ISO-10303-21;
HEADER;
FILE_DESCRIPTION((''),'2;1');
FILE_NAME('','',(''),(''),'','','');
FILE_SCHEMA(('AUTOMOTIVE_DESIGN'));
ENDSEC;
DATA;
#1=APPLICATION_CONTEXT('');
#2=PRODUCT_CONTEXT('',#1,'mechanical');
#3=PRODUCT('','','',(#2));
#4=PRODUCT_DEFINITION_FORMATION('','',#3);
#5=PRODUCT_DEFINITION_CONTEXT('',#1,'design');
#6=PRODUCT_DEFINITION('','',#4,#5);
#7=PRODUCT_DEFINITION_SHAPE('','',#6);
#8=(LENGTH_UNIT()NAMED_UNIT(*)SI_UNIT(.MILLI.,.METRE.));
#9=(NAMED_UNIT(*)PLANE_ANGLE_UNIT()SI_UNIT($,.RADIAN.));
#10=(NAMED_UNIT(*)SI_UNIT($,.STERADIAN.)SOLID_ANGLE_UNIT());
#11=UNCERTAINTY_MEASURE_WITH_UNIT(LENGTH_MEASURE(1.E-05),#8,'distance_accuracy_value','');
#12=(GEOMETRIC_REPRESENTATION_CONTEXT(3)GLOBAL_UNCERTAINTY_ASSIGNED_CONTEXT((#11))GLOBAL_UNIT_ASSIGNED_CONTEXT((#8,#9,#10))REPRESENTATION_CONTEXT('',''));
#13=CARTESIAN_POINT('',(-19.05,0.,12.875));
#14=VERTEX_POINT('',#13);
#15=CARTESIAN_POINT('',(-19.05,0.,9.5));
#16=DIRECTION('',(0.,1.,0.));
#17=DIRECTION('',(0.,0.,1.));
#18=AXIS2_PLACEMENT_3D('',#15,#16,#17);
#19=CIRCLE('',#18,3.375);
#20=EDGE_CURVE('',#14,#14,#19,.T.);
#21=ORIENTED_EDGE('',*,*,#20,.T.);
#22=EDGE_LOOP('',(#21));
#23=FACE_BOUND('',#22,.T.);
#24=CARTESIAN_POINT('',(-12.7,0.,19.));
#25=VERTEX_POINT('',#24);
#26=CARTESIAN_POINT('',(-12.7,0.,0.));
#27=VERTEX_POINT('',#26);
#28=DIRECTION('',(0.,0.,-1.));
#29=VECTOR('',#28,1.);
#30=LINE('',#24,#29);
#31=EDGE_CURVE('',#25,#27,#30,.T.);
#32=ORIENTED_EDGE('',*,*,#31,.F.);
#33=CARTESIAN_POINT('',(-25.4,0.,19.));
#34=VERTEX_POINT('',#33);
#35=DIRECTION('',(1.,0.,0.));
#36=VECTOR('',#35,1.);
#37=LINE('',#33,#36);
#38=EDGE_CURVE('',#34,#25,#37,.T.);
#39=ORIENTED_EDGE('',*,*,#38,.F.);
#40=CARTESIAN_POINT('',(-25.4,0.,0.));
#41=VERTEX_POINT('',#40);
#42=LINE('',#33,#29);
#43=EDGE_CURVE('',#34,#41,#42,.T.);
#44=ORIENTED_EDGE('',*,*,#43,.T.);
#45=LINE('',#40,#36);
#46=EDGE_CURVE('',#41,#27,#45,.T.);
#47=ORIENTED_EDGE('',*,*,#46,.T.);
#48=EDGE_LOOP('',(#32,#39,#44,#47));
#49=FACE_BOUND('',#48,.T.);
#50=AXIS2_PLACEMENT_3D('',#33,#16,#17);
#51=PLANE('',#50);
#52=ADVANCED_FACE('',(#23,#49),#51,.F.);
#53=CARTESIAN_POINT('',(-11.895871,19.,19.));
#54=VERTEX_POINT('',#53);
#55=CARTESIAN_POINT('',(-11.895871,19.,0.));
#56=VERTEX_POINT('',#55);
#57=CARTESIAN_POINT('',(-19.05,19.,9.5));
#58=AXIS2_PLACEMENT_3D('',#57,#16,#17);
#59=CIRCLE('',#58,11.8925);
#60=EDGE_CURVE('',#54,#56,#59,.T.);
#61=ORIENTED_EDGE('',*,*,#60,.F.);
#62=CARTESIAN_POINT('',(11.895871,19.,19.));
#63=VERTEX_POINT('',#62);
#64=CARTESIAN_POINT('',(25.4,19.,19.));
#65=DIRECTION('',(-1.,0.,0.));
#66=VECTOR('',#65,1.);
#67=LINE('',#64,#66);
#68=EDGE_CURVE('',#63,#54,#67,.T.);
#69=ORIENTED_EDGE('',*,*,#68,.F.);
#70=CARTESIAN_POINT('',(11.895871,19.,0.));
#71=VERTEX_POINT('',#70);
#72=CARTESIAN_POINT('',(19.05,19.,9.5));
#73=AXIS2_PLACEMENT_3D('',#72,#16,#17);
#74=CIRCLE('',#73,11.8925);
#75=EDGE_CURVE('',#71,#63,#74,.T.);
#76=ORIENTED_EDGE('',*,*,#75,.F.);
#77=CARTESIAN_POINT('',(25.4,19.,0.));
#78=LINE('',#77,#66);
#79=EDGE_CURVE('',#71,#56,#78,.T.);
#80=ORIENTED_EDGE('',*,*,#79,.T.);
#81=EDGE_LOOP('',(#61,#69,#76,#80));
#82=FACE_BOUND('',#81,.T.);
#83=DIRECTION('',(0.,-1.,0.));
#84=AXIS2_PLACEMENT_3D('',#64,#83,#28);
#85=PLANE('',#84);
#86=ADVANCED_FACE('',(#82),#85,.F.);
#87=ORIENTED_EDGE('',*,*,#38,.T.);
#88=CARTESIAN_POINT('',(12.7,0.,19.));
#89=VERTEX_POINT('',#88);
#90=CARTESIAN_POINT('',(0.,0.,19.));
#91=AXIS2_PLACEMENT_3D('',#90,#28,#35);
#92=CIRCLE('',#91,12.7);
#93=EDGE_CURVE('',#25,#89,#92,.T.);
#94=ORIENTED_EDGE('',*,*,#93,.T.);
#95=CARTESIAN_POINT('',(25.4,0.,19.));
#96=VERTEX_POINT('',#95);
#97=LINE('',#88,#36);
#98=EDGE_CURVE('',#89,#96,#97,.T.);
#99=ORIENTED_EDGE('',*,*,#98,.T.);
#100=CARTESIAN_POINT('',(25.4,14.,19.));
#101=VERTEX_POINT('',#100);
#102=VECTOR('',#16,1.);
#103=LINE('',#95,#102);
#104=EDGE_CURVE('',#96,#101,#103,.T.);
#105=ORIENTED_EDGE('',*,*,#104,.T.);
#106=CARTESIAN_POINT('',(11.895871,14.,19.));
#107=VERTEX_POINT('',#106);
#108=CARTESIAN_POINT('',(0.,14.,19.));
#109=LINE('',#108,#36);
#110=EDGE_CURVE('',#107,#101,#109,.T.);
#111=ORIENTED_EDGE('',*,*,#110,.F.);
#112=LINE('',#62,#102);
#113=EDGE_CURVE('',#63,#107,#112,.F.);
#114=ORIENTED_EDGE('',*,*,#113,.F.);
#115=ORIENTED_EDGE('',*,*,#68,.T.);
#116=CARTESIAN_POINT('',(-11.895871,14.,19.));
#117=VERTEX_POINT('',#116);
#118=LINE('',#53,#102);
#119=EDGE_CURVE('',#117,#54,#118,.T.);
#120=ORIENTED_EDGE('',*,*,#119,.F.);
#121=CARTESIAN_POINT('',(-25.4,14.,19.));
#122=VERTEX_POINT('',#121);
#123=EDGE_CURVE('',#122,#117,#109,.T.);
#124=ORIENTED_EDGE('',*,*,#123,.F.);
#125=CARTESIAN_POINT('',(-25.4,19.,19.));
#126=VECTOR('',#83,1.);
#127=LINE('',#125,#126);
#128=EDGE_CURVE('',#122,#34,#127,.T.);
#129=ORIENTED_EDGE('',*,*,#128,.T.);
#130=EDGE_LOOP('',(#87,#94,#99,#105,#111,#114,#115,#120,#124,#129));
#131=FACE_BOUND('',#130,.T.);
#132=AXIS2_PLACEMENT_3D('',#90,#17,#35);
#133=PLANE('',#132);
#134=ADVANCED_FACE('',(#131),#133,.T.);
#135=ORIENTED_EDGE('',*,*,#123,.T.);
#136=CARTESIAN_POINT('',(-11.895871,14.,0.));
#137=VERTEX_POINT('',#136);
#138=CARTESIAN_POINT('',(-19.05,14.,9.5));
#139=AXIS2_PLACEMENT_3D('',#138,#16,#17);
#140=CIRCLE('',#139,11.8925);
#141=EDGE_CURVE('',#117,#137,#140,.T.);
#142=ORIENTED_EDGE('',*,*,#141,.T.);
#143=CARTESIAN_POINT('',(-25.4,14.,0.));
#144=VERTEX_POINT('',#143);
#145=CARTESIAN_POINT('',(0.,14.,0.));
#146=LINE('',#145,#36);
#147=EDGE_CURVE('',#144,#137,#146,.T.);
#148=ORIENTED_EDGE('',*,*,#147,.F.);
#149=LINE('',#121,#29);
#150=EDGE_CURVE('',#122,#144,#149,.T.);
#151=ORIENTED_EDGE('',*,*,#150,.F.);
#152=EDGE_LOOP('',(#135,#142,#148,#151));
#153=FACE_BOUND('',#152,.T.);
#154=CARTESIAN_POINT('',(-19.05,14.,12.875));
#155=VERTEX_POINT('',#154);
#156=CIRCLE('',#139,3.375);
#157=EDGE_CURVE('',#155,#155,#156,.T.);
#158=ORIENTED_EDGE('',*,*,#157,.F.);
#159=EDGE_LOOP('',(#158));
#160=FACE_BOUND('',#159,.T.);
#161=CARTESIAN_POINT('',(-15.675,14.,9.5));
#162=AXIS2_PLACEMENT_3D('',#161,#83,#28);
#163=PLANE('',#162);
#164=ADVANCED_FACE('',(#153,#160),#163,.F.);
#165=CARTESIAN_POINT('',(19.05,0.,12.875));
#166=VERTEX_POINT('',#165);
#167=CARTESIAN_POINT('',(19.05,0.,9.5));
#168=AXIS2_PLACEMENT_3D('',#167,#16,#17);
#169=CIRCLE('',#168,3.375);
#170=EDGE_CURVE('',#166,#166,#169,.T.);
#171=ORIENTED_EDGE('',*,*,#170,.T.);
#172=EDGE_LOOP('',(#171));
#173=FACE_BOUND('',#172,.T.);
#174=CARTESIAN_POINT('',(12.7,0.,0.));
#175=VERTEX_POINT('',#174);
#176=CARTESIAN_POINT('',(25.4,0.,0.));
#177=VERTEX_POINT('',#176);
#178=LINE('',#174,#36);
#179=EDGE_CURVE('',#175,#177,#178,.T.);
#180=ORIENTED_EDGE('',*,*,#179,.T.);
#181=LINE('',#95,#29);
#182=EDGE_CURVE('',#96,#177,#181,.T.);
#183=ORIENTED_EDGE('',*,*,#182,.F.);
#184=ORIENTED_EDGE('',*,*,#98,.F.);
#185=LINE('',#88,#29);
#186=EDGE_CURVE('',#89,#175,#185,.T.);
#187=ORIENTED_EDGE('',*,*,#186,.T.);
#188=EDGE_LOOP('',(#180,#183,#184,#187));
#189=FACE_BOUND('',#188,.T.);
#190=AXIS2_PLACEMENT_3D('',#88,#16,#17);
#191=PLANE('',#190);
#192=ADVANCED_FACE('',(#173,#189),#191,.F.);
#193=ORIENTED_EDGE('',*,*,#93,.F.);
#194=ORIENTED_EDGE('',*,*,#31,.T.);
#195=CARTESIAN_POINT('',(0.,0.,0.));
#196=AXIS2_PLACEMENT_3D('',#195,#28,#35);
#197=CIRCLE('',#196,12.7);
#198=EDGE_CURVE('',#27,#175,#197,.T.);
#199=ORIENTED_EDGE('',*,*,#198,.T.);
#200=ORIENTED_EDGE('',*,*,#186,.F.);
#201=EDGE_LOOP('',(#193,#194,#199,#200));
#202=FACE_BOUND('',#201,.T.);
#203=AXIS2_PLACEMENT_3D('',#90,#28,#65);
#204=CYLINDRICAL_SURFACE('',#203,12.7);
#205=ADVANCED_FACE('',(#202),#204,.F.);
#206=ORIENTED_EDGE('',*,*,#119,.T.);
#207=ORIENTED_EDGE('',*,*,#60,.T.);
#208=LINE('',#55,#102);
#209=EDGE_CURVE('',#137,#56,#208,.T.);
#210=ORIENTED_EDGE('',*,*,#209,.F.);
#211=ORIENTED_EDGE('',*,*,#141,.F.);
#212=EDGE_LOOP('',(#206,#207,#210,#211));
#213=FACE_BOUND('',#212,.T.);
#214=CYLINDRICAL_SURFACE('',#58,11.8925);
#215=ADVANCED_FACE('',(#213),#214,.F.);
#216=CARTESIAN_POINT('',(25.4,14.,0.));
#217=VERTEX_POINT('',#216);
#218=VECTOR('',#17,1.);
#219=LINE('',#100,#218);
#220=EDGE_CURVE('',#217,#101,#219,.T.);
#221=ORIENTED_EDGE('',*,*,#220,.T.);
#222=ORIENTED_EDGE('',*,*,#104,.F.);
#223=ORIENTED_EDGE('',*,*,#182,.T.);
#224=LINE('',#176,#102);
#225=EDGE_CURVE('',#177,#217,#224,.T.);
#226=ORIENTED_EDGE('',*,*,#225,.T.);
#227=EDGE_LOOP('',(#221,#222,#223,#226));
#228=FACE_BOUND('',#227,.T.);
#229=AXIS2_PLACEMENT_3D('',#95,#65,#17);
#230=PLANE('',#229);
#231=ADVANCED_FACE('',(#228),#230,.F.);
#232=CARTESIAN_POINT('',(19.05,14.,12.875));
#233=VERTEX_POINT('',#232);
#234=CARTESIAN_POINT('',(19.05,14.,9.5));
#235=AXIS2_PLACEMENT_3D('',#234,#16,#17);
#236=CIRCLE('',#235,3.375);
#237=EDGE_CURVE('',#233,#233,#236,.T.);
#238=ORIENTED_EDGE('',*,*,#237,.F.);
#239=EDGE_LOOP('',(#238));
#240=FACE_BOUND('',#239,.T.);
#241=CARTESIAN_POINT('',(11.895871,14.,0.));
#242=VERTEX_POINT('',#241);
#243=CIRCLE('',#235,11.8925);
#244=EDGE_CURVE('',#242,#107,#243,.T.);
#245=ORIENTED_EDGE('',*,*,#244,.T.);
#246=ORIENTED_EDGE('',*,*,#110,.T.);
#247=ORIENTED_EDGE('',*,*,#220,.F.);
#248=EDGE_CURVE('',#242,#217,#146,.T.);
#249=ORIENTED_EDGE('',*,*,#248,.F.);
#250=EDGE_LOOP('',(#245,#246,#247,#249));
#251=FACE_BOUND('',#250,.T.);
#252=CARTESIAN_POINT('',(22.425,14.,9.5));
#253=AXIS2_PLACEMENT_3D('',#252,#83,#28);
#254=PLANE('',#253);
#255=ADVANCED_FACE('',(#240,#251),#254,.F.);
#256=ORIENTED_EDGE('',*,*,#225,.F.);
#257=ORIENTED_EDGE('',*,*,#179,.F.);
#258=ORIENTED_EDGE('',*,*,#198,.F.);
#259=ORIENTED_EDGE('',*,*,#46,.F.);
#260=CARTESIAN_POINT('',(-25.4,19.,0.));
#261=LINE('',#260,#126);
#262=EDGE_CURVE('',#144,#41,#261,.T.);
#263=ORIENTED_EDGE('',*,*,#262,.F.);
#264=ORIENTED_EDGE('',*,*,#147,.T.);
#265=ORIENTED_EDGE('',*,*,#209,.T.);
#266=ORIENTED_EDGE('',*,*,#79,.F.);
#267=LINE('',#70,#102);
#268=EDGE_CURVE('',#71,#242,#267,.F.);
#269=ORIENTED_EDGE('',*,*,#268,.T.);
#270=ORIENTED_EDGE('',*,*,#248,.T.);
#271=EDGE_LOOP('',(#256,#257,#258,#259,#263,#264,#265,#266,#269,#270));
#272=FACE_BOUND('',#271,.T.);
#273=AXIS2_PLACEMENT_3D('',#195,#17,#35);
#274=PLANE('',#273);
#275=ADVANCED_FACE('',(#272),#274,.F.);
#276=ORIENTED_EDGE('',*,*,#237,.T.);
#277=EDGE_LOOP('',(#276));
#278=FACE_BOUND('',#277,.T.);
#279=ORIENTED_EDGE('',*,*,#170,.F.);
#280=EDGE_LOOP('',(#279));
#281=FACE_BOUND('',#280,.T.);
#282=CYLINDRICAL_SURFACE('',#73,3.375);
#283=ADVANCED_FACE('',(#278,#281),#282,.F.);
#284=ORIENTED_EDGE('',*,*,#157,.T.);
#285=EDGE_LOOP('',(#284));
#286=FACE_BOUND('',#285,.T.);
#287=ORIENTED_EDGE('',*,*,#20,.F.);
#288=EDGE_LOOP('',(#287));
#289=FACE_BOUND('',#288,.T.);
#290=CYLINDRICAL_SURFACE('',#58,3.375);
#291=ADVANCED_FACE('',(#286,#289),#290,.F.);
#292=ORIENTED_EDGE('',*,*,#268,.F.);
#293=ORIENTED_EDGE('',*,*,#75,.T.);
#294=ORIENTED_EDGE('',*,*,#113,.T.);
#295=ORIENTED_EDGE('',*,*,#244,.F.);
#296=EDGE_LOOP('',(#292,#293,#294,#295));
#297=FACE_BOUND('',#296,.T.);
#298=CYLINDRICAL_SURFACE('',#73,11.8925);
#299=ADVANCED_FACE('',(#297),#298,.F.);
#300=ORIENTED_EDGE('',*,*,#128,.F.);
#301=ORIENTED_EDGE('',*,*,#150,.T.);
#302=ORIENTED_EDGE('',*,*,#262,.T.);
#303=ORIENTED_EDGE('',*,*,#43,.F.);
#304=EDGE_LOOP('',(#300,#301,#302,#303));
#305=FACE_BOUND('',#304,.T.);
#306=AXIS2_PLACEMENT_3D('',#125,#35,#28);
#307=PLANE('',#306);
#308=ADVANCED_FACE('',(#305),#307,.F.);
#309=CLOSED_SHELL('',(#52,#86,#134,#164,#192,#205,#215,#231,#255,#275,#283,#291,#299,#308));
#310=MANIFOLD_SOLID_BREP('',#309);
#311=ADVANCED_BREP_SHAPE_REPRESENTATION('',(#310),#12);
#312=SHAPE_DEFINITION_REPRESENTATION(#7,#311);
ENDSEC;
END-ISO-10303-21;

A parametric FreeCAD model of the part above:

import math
import FreeCAD as App
import Part
import Sketcher

V = App.Vector
Q = App.Units.Quantity

doc = App.newDocument("Part")
body = doc.addObject("PartDesign::Body", "Body")

sketch1 = doc.addObject("Sketcher::SketchObject", "Sketch")
body.addObject(sketch1)
sketch1.AttachmentSupport = (doc.XY_Plane, [""])
sketch1.MapMode = "FlatFace"
sketch1.addGeometry([
    Part.LineSegment(V(13, 0, 0), V(25, 0, 0)),
    Part.LineSegment(V(25, 0, 0), V(25, 19, 0)),
    Part.LineSegment(V(25, 19, 0), V(-25, 19, 0)),
    Part.LineSegment(V(-25, 19, 0), V(-25, 0, 0)),
    Part.LineSegment(V(-25, 0, 0), V(-13, 0, 0)),
    Part.ArcOfCircle(Part.Circle(V(0, 0, 0), V(0, 0, 1), 13), math.radians(0), math.radians(180)),
], False)
sketch1.addConstraint([
    Sketcher.Constraint("Coincident", 0, 2, 1, 1),
    Sketcher.Constraint("Coincident", 1, 2, 2, 1),
    Sketcher.Constraint("Coincident", 2, 2, 3, 1),
    Sketcher.Constraint("Coincident", 3, 2, 4, 1),
    Sketcher.Constraint("Coincident", 4, 2, 5, 2),
    Sketcher.Constraint("Coincident", 5, 1, 0, 1),
    Sketcher.Constraint("Horizontal", 0),
    Sketcher.Constraint("Vertical", 1),
    Sketcher.Constraint("Horizontal", 2),
    Sketcher.Constraint("Vertical", 3),
    Sketcher.Constraint("Horizontal", 4),
    Sketcher.Constraint("Coincident", 5, 3, -1, 1),
    Sketcher.Constraint("Symmetric", 0, 2, 3, 2, -1, 1),
    Sketcher.Constraint("PointOnObject", 0, 2, -1),
    Sketcher.Constraint("Radius", 5, Q("0.5 in")),
    Sketcher.Constraint("DistanceX", 2, 2, 2, 1, Q("2 in")),
    Sketcher.Constraint("DistanceY", 1, 1, 1, 2, 19.0),
])
pad1 = doc.addObject("PartDesign::Pad", "Pad")
body.addObject(pad1)
pad1.Profile = sketch1
pad1.Length = 19

sketch2 = doc.addObject("Sketcher::SketchObject", "Sketch001")
body.addObject(sketch2)
sketch2.AttachmentSupport = (doc.XZ_Plane, [""])
sketch2.MapMode = "FlatFace"
sketch2.AttachmentOffset = App.Placement(V(0, 0, -19), App.Rotation())
sketch2.addGeometry([
    Part.Circle(V(19.1, 9.5, 0), V(0, 0, 1), 3.4),
    Part.Circle(V(-19.1, 9.5, 0), V(0, 0, 1), 3.4),
], False)
sketch2.addConstraint([
    Sketcher.Constraint("Equal", 0, 1),
    Sketcher.Constraint("Symmetric", 0, 3, 1, 3, -2),
    Sketcher.Constraint("DistanceX", 1, 3, 0, 3, Q("1.5 in")),
    Sketcher.Constraint("Diameter", 0, 6.75),
    Sketcher.Constraint("DistanceY", -1, 1, 0, 3, 9.5),
])
doc.recompute()
hole = doc.addObject("PartDesign::Hole", "Hole")
body.addObject(hole)
hole.Profile = sketch2
hole.ThreadType = "None"
hole.Diameter = 6.75
hole.DepthType = "Dimension"
hole.Depth = 100
hole.DrillPoint = "Flat"
hole.HoleCutType = "Counterbore"
hole.HoleCutDiameter = 23.785
hole.HoleCutDepth = 5
hole.Reversed = True

doc.recompute()
